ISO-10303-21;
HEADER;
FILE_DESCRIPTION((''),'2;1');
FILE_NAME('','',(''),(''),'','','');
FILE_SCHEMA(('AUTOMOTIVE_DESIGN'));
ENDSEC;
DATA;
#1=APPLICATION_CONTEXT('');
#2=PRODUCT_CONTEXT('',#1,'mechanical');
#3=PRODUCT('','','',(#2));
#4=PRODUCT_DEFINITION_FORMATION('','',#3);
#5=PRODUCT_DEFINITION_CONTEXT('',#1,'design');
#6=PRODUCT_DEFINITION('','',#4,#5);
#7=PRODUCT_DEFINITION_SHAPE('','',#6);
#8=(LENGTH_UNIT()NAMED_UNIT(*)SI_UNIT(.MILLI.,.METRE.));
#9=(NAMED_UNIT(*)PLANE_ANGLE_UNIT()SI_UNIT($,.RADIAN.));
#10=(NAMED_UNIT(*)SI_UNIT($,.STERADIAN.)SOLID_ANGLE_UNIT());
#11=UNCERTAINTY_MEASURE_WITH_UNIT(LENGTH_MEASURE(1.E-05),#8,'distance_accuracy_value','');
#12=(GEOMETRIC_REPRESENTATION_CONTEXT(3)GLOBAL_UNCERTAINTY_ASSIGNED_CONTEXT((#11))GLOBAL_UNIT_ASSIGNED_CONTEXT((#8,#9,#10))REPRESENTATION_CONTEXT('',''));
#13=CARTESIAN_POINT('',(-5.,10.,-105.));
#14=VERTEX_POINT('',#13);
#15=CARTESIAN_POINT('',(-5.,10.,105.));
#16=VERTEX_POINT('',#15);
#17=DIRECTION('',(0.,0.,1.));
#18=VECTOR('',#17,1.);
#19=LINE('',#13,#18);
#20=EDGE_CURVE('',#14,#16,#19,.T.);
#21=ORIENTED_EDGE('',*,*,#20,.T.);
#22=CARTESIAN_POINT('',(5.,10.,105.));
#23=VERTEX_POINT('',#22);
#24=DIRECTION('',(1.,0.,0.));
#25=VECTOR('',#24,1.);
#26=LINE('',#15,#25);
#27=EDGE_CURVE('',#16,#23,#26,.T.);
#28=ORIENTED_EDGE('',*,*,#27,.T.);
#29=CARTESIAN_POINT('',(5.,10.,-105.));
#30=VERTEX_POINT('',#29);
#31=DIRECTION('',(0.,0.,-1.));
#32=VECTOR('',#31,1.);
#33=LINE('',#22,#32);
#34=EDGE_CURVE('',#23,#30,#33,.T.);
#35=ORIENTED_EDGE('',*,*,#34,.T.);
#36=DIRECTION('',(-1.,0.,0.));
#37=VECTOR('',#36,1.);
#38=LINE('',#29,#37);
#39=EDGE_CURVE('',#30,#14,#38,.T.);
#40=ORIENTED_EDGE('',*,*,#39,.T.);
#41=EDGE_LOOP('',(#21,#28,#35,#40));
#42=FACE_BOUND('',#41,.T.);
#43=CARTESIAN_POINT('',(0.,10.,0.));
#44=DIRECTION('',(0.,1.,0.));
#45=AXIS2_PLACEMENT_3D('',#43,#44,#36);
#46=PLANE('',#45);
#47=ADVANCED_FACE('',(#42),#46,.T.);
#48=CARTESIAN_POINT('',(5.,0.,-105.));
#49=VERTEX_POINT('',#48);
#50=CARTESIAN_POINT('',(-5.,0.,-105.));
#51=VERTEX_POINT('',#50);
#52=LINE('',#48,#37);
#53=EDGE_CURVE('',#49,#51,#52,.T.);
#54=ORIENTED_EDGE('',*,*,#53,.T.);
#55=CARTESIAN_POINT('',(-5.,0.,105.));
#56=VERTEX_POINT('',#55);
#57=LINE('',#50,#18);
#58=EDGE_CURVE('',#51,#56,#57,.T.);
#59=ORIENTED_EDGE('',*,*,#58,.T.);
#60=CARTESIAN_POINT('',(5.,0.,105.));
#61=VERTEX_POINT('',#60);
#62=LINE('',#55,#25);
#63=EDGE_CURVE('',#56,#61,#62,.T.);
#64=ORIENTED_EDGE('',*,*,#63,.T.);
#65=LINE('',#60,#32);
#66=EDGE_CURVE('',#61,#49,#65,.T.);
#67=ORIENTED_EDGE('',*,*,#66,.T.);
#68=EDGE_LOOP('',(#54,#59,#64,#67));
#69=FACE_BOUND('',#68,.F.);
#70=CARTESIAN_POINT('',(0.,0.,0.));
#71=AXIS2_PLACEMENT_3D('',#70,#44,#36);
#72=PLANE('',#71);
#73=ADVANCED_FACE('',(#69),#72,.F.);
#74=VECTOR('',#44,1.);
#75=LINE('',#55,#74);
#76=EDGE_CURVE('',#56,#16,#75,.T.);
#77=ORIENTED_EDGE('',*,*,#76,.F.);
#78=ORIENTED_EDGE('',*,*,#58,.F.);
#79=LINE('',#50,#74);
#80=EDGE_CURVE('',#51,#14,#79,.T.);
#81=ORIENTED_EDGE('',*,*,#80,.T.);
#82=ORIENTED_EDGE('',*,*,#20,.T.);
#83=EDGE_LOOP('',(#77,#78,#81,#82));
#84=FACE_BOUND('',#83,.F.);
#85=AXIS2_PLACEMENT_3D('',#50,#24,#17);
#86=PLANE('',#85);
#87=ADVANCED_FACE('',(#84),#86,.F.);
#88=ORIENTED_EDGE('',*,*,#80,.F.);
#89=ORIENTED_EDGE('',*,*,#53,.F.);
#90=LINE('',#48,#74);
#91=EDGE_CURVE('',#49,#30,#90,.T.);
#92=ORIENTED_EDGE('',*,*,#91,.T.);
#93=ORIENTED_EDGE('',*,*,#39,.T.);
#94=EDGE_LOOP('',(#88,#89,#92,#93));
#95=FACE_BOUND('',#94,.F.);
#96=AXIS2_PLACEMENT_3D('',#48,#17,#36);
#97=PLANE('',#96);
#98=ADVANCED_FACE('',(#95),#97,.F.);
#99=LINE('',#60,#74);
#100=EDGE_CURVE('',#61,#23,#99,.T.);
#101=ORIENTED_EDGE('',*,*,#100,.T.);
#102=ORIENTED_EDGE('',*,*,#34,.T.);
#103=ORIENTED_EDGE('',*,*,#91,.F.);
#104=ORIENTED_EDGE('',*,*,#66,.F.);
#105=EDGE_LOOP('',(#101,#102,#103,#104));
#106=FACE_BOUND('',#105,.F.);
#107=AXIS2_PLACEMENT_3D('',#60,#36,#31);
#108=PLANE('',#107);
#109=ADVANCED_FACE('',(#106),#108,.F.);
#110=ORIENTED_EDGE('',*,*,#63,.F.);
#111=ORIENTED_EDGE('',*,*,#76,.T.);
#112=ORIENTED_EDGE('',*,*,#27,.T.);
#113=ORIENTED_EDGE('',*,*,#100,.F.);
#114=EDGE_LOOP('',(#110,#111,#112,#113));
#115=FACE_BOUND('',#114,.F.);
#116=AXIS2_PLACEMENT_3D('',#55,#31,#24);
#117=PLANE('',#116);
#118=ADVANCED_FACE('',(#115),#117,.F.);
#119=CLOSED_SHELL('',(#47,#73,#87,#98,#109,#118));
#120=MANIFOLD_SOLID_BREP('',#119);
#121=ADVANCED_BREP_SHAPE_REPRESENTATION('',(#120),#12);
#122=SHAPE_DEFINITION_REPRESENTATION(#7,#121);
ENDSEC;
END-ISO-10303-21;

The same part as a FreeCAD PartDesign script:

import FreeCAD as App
import Part
import Sketcher
from FreeCAD import Vector
Q = App.Units.Quantity


def add_polygon(sketch, points):
    """Adds a closed chain of lines whose ends are joined by coincident constraints."""
    first, n = sketch.GeometryCount, len(points)
    for a, b in zip(points, points[1:] + points[:1]):
        sketch.addGeometry(Part.LineSegment(App.Vector(*a, 0), App.Vector(*b, 0)), False)
    for i in range(n):
        sketch.addConstraint(Sketcher.Constraint("Coincident", first + i, 2, first + (i + 1) % n, 1))

doc = App.newDocument("Part")
params = doc.addObject("Spreadsheet::Sheet", "Params")
for row, (alias, value) in enumerate([
    ("sketch1_width", "10 mm"),
    ("sketch1_height", "210 mm"),
    ("pad1_length", "10 mm"),
], start=1):
    params.set(f"A{row}", alias)
    params.set(f"B{row}", "=" + value)
    params.setAlias(f"B{row}", alias)

body = doc.addObject("PartDesign::Body", "Body")

# Sketch on XZ plane
sketch1 = body.newObject("Sketcher::SketchObject", "Sketch")
sketch1.AttachmentSupport = (doc.getObject("XZ_Plane"), [""])
sketch1.MapMode = "FlatFace"
add_polygon(sketch1, [(5, 105), (5, -105), (-5, -105), (-5, 105)])  # lines 0-3
sketch1.addConstraint([
    Sketcher.Constraint("Vertical", 0),
    Sketcher.Constraint("Horizontal", 1),
    Sketcher.Constraint("Vertical", 2),
    Sketcher.Constraint("Horizontal", 3),
    Sketcher.Constraint("Symmetric", 0, 2, 2, 2, -1, 1),
    Sketcher.Constraint("DistanceX", 1, 2, 1, 1, Q("10 mm")),
    Sketcher.Constraint("DistanceY", 0, 2, 0, 1, Q("210 mm")),
])
sketch1.setExpression("Constraints[9]", "Params.sketch1_width")
sketch1.setExpression("Constraints[10]", "Params.sketch1_height")
pad1 = body.newObject("PartDesign::Pad", "Pad")
pad1.Profile = sketch1
pad1.setExpression("Length", "Params.pad1_length")
pad1.Reversed = True

doc.recompute()
